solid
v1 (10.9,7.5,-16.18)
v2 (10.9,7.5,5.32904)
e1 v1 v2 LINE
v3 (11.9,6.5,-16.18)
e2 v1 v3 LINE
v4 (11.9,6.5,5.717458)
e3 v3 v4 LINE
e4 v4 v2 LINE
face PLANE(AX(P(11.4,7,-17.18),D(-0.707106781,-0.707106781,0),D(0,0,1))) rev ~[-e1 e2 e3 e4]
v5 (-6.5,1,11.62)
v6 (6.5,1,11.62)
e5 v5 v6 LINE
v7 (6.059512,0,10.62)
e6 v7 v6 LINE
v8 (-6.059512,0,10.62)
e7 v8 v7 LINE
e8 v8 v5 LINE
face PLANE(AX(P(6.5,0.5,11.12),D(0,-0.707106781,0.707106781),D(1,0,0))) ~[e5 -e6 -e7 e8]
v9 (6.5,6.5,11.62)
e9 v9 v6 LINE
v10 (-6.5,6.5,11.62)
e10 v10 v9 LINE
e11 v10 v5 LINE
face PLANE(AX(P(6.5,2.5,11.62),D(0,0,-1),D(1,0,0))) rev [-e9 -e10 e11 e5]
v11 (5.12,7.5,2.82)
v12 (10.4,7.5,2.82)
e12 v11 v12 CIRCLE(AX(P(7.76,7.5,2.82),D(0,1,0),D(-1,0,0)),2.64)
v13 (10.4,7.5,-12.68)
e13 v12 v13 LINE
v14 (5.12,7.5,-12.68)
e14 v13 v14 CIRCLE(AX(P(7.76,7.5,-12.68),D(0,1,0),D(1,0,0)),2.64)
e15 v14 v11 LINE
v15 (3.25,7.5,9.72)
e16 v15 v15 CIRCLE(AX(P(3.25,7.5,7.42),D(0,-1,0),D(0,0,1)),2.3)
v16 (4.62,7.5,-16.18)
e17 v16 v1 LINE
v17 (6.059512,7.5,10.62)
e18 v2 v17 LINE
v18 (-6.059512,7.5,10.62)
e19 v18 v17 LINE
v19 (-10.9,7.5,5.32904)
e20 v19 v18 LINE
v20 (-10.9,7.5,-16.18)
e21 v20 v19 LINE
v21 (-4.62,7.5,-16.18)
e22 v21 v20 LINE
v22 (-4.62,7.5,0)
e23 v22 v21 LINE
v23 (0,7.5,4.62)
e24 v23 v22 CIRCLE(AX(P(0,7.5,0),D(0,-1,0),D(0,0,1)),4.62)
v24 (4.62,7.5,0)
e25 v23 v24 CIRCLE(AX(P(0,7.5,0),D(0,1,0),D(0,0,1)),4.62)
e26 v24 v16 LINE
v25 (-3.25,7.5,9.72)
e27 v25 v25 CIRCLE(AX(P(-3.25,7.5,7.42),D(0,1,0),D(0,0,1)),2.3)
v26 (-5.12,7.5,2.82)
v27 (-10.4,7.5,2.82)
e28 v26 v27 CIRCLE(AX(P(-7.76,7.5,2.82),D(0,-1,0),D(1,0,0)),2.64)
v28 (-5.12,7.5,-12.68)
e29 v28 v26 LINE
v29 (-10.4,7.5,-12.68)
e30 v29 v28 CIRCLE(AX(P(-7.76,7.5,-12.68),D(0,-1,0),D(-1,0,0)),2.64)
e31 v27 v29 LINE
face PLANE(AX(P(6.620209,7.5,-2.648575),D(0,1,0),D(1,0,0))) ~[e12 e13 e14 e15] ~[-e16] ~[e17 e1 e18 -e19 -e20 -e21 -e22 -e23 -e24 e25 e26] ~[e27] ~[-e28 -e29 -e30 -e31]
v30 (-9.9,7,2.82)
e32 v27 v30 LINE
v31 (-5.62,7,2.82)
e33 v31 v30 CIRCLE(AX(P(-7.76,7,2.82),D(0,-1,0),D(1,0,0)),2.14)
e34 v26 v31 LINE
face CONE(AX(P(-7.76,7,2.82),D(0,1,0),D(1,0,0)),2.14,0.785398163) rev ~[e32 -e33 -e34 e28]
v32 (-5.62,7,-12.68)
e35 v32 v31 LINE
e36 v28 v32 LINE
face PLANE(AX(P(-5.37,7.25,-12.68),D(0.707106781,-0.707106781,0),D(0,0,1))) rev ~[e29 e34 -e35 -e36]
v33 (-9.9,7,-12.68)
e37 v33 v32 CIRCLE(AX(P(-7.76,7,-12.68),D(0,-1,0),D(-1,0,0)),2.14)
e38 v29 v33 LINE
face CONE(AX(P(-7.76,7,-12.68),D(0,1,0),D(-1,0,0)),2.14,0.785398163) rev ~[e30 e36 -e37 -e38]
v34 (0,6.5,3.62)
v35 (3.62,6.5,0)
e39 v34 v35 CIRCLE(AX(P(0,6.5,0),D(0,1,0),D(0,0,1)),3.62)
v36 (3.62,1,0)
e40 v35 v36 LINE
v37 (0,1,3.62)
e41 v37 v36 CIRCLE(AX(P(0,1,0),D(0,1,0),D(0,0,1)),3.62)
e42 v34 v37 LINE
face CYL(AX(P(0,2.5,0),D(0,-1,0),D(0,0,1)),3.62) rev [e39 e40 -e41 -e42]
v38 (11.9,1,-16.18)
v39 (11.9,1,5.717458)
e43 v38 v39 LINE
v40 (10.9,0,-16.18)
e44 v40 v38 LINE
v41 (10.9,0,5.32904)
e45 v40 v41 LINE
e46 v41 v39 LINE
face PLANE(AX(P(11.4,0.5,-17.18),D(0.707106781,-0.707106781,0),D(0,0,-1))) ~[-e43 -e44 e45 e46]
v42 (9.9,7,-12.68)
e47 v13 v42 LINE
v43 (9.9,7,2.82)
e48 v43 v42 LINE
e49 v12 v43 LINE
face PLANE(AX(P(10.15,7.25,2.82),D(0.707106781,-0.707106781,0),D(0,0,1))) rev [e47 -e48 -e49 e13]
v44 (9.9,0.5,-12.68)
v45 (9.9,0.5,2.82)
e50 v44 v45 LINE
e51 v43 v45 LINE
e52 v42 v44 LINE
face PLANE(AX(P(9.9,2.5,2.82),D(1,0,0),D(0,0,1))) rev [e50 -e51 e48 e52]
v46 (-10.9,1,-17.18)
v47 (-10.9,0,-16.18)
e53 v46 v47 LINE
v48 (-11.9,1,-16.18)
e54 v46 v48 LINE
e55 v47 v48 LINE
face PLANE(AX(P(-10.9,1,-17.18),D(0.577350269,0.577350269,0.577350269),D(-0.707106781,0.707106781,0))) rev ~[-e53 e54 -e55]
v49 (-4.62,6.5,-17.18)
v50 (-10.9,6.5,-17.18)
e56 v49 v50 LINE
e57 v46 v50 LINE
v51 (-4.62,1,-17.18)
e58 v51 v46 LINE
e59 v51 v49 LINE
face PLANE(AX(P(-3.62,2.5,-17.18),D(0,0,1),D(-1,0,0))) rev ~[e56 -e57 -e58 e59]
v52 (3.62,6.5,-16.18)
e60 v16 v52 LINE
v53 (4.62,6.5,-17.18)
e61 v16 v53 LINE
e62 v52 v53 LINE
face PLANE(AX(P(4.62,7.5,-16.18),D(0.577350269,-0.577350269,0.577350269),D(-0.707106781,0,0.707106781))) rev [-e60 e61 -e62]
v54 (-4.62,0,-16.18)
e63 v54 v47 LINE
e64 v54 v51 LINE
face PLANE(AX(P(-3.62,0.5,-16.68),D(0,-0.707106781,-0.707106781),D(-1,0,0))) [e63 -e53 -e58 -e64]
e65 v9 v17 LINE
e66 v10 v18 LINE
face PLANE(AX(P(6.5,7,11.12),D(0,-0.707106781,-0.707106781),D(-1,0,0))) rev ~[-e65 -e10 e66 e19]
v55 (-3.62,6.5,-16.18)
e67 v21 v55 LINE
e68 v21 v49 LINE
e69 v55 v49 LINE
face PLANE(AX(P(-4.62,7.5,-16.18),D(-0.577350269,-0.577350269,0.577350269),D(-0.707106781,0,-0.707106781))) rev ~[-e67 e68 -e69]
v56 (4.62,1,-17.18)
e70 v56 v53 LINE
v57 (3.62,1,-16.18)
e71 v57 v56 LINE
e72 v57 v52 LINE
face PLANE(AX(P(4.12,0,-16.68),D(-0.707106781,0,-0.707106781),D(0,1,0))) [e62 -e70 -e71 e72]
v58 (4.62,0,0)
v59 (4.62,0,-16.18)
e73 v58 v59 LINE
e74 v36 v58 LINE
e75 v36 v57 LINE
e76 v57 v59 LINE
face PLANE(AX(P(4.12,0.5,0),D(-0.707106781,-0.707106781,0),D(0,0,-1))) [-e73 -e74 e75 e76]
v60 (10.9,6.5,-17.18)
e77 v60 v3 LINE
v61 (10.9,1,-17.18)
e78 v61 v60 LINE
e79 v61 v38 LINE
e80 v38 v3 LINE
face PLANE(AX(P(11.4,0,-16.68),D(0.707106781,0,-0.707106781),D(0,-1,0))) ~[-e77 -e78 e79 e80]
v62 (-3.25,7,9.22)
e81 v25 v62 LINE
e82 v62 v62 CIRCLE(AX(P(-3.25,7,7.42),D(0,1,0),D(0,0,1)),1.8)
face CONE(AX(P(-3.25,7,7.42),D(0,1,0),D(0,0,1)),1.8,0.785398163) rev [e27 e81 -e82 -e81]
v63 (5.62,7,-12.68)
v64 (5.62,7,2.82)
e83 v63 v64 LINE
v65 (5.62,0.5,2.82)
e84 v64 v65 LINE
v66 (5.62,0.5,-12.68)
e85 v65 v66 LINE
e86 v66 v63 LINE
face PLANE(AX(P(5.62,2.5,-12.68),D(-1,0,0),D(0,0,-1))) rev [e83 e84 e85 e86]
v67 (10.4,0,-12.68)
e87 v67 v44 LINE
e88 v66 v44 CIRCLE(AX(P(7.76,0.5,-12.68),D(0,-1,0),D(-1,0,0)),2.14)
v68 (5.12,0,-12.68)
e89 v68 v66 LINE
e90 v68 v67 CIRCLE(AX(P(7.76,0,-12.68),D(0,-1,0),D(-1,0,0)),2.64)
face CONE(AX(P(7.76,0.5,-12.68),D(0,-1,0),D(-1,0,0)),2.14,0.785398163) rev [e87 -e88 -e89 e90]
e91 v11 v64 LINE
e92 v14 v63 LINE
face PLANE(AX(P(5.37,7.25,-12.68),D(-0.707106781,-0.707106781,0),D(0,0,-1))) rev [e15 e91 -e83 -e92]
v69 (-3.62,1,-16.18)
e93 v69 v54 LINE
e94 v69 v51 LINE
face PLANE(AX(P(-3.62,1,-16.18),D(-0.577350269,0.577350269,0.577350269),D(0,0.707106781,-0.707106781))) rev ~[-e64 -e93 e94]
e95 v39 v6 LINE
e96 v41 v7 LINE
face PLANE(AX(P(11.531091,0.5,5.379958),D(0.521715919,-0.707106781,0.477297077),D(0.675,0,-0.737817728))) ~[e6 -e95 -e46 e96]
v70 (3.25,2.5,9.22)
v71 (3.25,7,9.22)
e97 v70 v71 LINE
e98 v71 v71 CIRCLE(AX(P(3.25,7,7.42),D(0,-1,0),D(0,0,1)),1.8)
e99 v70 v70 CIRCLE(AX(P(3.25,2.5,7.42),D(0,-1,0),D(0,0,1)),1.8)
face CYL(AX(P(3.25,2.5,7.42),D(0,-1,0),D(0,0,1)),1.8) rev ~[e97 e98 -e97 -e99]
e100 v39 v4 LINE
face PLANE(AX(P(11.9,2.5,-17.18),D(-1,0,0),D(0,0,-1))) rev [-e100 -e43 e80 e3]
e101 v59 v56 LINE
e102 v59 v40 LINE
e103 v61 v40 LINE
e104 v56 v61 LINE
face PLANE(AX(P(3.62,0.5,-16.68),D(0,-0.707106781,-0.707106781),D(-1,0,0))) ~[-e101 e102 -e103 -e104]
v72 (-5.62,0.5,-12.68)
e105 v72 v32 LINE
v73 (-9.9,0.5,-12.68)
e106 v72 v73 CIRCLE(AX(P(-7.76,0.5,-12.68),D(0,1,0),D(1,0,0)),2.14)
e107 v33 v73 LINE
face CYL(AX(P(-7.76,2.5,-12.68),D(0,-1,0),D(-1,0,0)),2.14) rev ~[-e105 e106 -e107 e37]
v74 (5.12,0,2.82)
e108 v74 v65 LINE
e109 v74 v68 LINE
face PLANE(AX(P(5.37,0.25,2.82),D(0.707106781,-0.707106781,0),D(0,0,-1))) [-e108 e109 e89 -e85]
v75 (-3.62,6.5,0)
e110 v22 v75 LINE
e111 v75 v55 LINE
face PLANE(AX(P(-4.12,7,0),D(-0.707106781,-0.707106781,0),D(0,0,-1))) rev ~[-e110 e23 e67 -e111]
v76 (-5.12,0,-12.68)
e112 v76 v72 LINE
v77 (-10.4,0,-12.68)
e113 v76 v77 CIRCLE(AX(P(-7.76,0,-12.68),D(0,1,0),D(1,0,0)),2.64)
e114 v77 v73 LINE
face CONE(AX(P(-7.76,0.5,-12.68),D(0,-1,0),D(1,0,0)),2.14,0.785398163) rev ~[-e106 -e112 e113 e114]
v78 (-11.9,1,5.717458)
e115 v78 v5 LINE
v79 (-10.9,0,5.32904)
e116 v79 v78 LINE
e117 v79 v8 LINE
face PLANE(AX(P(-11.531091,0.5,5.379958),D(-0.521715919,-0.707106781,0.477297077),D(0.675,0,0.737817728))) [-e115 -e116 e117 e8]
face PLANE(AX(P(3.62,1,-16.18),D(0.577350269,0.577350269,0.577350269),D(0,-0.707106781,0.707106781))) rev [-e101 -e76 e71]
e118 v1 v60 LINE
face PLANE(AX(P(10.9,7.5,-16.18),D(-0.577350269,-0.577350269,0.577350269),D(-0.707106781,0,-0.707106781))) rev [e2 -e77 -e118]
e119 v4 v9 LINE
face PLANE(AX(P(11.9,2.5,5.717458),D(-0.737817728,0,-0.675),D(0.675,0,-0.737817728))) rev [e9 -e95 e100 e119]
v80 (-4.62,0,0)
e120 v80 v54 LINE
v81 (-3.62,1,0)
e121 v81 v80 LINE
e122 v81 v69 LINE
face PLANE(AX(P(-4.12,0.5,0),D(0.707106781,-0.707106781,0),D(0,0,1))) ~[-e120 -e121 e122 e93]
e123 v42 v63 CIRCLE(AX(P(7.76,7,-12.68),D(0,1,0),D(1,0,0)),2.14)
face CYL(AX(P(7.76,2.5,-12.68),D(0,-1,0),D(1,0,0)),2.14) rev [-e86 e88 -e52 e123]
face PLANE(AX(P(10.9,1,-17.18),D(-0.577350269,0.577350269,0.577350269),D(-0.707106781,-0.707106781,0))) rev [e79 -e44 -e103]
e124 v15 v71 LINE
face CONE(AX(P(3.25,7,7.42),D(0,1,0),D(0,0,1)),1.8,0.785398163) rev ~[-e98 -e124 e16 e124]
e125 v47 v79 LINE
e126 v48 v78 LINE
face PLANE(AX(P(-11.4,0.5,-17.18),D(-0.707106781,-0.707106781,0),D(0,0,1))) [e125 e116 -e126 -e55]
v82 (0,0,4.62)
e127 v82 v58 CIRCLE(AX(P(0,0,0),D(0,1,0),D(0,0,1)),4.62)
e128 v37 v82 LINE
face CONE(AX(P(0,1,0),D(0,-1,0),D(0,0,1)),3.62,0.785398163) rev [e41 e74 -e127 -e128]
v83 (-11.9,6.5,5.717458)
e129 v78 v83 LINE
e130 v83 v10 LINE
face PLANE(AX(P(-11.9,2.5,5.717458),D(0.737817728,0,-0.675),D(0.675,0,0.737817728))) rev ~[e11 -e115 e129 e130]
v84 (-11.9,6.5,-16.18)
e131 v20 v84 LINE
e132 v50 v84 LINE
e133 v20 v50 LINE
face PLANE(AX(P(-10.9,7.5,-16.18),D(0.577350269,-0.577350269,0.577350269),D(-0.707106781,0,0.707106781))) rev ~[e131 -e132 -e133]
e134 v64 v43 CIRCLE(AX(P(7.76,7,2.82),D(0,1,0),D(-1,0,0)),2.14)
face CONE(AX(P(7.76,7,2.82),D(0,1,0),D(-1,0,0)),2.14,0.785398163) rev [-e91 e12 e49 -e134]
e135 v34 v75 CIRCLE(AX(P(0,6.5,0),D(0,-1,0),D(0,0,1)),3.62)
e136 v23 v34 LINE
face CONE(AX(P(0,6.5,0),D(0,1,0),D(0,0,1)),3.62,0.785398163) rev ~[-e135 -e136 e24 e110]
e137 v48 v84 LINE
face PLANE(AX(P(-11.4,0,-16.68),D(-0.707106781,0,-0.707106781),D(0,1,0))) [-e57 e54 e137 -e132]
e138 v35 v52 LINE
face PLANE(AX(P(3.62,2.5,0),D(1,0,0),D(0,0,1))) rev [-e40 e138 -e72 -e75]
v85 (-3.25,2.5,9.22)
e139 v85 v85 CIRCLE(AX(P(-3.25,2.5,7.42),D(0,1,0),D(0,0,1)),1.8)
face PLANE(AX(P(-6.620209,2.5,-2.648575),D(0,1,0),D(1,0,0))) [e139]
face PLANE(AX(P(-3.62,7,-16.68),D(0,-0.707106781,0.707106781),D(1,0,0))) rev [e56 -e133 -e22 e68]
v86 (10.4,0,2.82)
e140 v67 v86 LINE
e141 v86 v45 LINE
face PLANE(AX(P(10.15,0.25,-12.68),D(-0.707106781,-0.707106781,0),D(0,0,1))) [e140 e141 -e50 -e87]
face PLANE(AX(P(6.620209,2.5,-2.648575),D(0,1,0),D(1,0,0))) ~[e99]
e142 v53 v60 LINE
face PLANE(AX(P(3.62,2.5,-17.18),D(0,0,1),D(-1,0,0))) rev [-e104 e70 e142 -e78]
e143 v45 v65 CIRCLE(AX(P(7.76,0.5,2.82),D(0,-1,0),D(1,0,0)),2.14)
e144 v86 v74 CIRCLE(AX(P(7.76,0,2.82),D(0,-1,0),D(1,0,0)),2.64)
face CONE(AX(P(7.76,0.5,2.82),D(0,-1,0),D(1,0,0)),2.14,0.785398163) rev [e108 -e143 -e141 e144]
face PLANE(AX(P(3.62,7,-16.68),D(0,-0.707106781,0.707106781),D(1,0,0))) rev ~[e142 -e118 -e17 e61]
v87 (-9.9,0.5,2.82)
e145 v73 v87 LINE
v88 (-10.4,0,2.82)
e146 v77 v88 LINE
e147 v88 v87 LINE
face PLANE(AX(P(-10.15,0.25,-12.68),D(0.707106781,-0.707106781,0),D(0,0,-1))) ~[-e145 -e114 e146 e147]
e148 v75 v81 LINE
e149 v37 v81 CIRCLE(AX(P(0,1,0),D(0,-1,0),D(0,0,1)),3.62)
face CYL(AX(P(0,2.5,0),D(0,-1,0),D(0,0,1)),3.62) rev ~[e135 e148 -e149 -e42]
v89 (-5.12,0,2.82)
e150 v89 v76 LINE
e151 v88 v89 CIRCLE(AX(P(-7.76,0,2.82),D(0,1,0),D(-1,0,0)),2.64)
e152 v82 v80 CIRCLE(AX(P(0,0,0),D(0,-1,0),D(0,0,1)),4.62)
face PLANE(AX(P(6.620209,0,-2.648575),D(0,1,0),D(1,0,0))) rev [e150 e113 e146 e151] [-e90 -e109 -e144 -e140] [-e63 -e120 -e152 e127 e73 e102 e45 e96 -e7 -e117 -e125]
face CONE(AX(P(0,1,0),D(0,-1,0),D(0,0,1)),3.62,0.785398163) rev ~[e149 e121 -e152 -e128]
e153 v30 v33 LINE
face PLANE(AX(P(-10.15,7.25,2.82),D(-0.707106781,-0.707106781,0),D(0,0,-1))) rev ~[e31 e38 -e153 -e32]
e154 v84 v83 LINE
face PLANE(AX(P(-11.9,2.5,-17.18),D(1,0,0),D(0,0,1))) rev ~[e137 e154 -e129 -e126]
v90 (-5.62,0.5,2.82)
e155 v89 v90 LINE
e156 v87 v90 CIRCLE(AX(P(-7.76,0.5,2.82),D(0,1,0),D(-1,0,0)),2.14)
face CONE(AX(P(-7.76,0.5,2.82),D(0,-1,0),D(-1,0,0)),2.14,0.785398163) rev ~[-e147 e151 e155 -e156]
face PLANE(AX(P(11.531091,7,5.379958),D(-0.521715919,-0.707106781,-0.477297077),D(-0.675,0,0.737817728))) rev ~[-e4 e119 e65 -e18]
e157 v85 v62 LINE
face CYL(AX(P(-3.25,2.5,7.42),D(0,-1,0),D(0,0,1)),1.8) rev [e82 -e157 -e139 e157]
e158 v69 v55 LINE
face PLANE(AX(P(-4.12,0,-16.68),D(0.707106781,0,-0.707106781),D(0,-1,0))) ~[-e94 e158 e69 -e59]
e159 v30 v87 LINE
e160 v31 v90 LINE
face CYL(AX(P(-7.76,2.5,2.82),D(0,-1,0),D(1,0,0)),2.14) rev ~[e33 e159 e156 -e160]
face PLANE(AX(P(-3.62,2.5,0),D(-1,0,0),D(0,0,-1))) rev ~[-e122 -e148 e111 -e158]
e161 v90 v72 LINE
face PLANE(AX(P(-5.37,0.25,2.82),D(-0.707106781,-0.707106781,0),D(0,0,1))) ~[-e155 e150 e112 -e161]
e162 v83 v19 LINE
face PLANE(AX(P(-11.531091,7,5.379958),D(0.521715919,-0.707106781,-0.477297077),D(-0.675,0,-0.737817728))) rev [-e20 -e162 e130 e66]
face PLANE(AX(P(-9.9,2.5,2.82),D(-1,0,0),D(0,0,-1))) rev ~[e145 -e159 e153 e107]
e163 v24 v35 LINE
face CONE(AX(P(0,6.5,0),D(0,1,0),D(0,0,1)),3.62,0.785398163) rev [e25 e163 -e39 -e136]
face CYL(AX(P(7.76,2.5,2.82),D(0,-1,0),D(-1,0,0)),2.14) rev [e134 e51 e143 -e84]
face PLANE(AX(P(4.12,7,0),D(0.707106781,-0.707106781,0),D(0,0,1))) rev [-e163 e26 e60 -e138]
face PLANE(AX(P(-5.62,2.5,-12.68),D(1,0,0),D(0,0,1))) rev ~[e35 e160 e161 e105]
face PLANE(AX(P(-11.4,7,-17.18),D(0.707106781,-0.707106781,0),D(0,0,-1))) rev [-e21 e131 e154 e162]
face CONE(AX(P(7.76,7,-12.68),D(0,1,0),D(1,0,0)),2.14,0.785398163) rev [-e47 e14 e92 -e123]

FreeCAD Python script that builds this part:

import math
import FreeCAD as App
import Part
import Sketcher

V = App.Vector
Q = App.Units.Quantity


def edges_at(feature, points):
    """Names of the edges that pass closest to the given points."""
    edges = feature.Shape.Edges
    near = lambda p: min(range(len(edges)), key=lambda i: edges[i].distToShape(Part.Vertex(*p))[0])
    return sorted({f"Edge{near(p) + 1}" for p in points})

doc = App.newDocument("Part")
body = doc.addObject("PartDesign::Body", "Body")

# Sketch on XZ plane
sketch1 = body.newObject("Sketcher::SketchObject", "Sketch")
sketch1.AttachmentSupport = (doc.getObject("XZ_Plane"), [""])
sketch1.MapMode = "FlatFace"
sketch1.addGeometry([
    Part.LineSegment(V(0, 11.6, 0), V(0, 3.6, 0)),  # 0
    Part.ArcOfCircle(Part.Circle(V(0, 0, 0), V(0, 0, 1), 3.6), math.radians(90), math.radians(180)),  # 1
    Part.LineSegment(V(-3.6, 0, 0), V(-3.6, -17.2, 0)),  # 2
    Part.LineSegment(V(-3.6, -17.2, 0), V(-11.9, -17.2, 0)),  # 3
    Part.LineSegment(V(-11.9, -17.2, 0), V(-11.9, 5.7, 0)),  # 4
    Part.LineSegment(V(-11.9, 5.7, 0), V(-6.5, 11.6, 0)),  # 5
    Part.LineSegment(V(-6.5, 11.6, 0), V(0, 11.6, 0)),  # 6
    Part.ArcOfCircle(Part.Circle(V(-7.8, 2.8, 0), V(0, 0, 1), 2.1), math.radians(0), math.radians(180)),  # 7
    Part.LineSegment(V(-9.9, 2.8, 0), V(-9.9, -12.7, 0)),  # 8
    Part.ArcOfCircle(Part.Circle(V(-7.8, -12.7, 0), V(0, 0, 1), 2.1), math.radians(180), math.radians(360)),  # 9
    Part.LineSegment(V(-5.6, -12.7, 0), V(-5.6, 2.8, 0)),  # 10
], False)
sketch1.addConstraint([
    Sketcher.Constraint("Coincident", 0, 2, 1, 1),
    Sketcher.Constraint("Tangent", 1, 2, 2, 1),
    Sketcher.Constraint("Coincident", 2, 2, 3, 1),
    Sketcher.Constraint("Coincident", 3, 2, 4, 1),
    Sketcher.Constraint("Coincident", 4, 2, 5, 1),
    Sketcher.Constraint("Coincident", 5, 2, 6, 1),
    Sketcher.Constraint("Coincident", 6, 2, 0, 1),
    Sketcher.Constraint("Tangent", 7, 2, 8, 1),
    Sketcher.Constraint("Tangent", 8, 2, 9, 1),
    Sketcher.Constraint("Tangent", 9, 2, 10, 1),
    Sketcher.Constraint("Tangent", 10, 2, 7, 1),
    Sketcher.Constraint("Vertical", 0),
    Sketcher.Constraint("Vertical", 2),
    Sketcher.Constraint("Horizontal", 3),
    Sketcher.Constraint("Vertical", 4),
    Sketcher.Constraint("Horizontal", 6),
    Sketcher.Constraint("Vertical", 8),
    Sketcher.Constraint("Vertical", 10),
    Sketcher.Constraint("Coincident", 1, 3, -1, 1),
    Sketcher.Constraint("PointOnObject", 0, 2, -2),
    Sketcher.Constraint("DistanceY", 0, 2, 0, 1, Q("8 mm")),
    Sketcher.Constraint("Radius", 1, Q("3.62 mm")),
    Sketcher.Constraint("Radius", 7, Q("2.14 mm")),
    Sketcher.Constraint("Distance", 5, Q("8 mm")),
    Sketcher.Constraint("DistanceX", 6, 1, 6, 2, Q("6.5 mm")),
    Sketcher.Constraint("DistanceY", 8, 2, 8, 1, Q("15.5 mm")),
    Sketcher.Constraint("DistanceY", 2, 2, 7, 3, Q("20 mm")),
    Sketcher.Constraint("DistanceX", 4, 2, 7, 2, Q("2 mm")),
    Sketcher.Constraint("DistanceX", 9, 2, 2, 2, Q("2 mm")),
    Sketcher.Constraint("DistanceY", 2, 2, 2, 1, Q("17.18 mm")),
])
pad1 = body.newObject("PartDesign::Pad", "Pad")
pad1.Profile = sketch1
pad1.Length = 2.5
pad1.Reversed = True

# Sketch on XZ plane
sketch2 = body.newObject("Sketcher::SketchObject", "Sketch001")
sketch2.AttachmentSupport = (doc.getObject("XZ_Plane"), [""])
sketch2.MapMode = "FlatFace"
sketch2.AttachmentOffset = App.Placement(V(0, 0, -2.5), App.Rotation())
sketch2.addGeometry([
    Part.LineSegment(V(-3.6, 0, 0), V(-3.6, -17.2, 0)),  # 0
    Part.LineSegment(V(-3.6, -17.2, 0), V(-11.9, -17.2, 0)),  # 1
    Part.LineSegment(V(-11.9, -17.2, 0), V(-11.9, 5.7, 0)),  # 2
    Part.LineSegment(V(-11.9, 5.7, 0), V(-6.5, 11.6, 0)),  # 3
    Part.LineSegment(V(-6.5, 11.6, 0), V(0, 11.6, 0)),  # 4
    Part.LineSegment(V(0, 11.6, 0), V(0, 3.6, 0)),  # 5
    Part.ArcOfCircle(Part.Circle(V(0, 0, 0), V(0, 0, 1), 3.6), math.radians(90), math.radians(180)),  # 6
    Part.Circle(V(-3.2, 7.4, 0), V(0, 0, 1), 1.8),  # 7
    Part.ArcOfCircle(Part.Circle(V(-7.8, -12.7, 0), V(0, 0, 1), 2.1), math.radians(180), math.radians(360)),  # 8
    Part.LineSegment(V(-5.6, -12.7, 0), V(-5.6, 2.8, 0)),  # 9
    Part.ArcOfCircle(Part.Circle(V(-7.8, 2.8, 0), V(0, 0, 1), 2.1), math.radians(0), math.radians(180)),  # 10
    Part.LineSegment(V(-9.9, 2.8, 0), V(-9.9, -12.7, 0)),  # 11
], False)
sketch2.addConstraint([
    Sketcher.Constraint("Coincident", 0, 2, 1, 1),
    Sketcher.Constraint("Coincident", 1, 2, 2, 1),
    Sketcher.Constraint("Coincident", 2, 2, 3, 1),
    Sketcher.Constraint("Coincident", 3, 2, 4, 1),
    Sketcher.Constraint("Coincident", 4, 2, 5, 1),
    Sketcher.Constraint("Coincident", 5, 2, 6, 1),
    Sketcher.Constraint("Tangent", 6, 2, 0, 1),
    Sketcher.Constraint("Tangent", 8, 2, 9, 1),
    Sketcher.Constraint("Tangent", 9, 2, 10, 1),
    Sketcher.Constraint("Tangent", 10, 2, 11, 1),
    Sketcher.Constraint("Tangent", 11, 2, 8, 1),
    Sketcher.Constraint("Vertical", 0),
    Sketcher.Constraint("Horizontal", 1),
    Sketcher.Constraint("Vertical", 2),
    Sketcher.Constraint("Horizontal", 4),
    Sketcher.Constraint("Vertical", 5),
    Sketcher.Constraint("Vertical", 9),
    Sketcher.Constraint("Vertical", 11),
    Sketcher.Constraint("Coincident", 6, 3, -1, 1),
    Sketcher.Constraint("PointOnObject", 4, 2, -2),
    Sketcher.Constraint("Diameter", 7, Q("3.6 mm")),
    Sketcher.Constraint("DistanceY", 5, 2, 5, 1, Q("8 mm")),
    Sketcher.Constraint("Radius", 6, Q("3.62 mm")),
    Sketcher.Constraint("Radius", 8, Q("2.14 mm")),
    Sketcher.Constraint("Distance", 3, Q("8 mm")),
    Sketcher.Constraint("DistanceX", 4, 1, 4, 2, Q("6.5 mm")),
    Sketcher.Constraint("DistanceY", 9, 1, 9, 2, Q("15.5 mm")),
    Sketcher.Constraint("DistanceY", 0, 2, 10, 3, Q("20 mm")),
    Sketcher.Constraint("DistanceX", 8, 2, 0, 2, Q("2 mm")),
    Sketcher.Constraint("DistanceX", 2, 2, 10, 2, Q("2 mm")),
    Sketcher.Constraint("DistanceY", 0, 2, 0, 1, Q("17.18 mm")),
    Sketcher.Constraint("DistanceY", 8, 3, 7, 3, Q("20.1 mm")),
    Sketcher.Constraint("DistanceX", 7, 3, -1, 1, Q("3.25 mm")),
])
pad2 = body.newObject("PartDesign::Pad", "Pad001")
pad2.Profile = sketch2
pad2.Length = 5
pad2.Reversed = True
doc.recompute()

chamfer = body.newObject("PartDesign::Chamfer", "Chamfer")
chamfer.Base = (pad2, edges_at(pad2, [
    (-3.25, 0, 11.62),
    (-9.2, 0, 8.669),
    (-11.9, 0, -5.731),
    (-7.76, 0, -17.18),
    (-3.62, 0, -8.59),
    (-2.56, 0, 2.56),
    (-11.9, 3.75, -17.18),
    (-3.62, 3.75, -17.18),
    (-2.56, 7.5, 2.56),
    (-3.62, 7.5, -8.59),
    (-7.76, 7.5, -17.18),
    (-11.9, 7.5, -5.731),
    (-9.2, 7.5, 8.669),
    (-3.25, 7.5, 11.62),
]))
chamfer.Size = 1
doc.recompute()

chamfer2 = body.newObject("PartDesign::Chamfer", "Chamfer001")
chamfer2.Base = (chamfer, edges_at(chamfer, [
    (-5.62, 0, -4.93),
    (-7.76, 0, -14.82),
    (-9.9, 0, -4.93),
    (-7.76, 0, 4.96),
    (-5.62, 7.5, -4.93),
    (-9.9, 7.5, -4.93),
    (-7.76, 7.5, 4.96),
    (-7.76, 7.5, -14.82),
    (-3.25, 7.5, 5.62),
]))
chamfer2.Size = 0.5
body2 = doc.addObject("PartDesign::Body", "Body001")
doc.recompute()

body2.BaseFeature = body
doc.recompute()

mirroring = doc.addObject("Part::Mirroring", "Mirroring")
mirroring.Source = body
mirroring.Base = V(0, 2.5, 0)
mirroring.Normal = V(-1, 0, 0)
body3 = doc.addObject("PartDesign::Body", "Body002")
body3.BaseFeature = mirroring
boolean = body2.newObject("PartDesign::Boolean", "Boolean")
boolean.Type = "Fuse"
boolean.addObjects([body3])
doc.recompute()
mirroring.Visibility = False

doc.recompute()
